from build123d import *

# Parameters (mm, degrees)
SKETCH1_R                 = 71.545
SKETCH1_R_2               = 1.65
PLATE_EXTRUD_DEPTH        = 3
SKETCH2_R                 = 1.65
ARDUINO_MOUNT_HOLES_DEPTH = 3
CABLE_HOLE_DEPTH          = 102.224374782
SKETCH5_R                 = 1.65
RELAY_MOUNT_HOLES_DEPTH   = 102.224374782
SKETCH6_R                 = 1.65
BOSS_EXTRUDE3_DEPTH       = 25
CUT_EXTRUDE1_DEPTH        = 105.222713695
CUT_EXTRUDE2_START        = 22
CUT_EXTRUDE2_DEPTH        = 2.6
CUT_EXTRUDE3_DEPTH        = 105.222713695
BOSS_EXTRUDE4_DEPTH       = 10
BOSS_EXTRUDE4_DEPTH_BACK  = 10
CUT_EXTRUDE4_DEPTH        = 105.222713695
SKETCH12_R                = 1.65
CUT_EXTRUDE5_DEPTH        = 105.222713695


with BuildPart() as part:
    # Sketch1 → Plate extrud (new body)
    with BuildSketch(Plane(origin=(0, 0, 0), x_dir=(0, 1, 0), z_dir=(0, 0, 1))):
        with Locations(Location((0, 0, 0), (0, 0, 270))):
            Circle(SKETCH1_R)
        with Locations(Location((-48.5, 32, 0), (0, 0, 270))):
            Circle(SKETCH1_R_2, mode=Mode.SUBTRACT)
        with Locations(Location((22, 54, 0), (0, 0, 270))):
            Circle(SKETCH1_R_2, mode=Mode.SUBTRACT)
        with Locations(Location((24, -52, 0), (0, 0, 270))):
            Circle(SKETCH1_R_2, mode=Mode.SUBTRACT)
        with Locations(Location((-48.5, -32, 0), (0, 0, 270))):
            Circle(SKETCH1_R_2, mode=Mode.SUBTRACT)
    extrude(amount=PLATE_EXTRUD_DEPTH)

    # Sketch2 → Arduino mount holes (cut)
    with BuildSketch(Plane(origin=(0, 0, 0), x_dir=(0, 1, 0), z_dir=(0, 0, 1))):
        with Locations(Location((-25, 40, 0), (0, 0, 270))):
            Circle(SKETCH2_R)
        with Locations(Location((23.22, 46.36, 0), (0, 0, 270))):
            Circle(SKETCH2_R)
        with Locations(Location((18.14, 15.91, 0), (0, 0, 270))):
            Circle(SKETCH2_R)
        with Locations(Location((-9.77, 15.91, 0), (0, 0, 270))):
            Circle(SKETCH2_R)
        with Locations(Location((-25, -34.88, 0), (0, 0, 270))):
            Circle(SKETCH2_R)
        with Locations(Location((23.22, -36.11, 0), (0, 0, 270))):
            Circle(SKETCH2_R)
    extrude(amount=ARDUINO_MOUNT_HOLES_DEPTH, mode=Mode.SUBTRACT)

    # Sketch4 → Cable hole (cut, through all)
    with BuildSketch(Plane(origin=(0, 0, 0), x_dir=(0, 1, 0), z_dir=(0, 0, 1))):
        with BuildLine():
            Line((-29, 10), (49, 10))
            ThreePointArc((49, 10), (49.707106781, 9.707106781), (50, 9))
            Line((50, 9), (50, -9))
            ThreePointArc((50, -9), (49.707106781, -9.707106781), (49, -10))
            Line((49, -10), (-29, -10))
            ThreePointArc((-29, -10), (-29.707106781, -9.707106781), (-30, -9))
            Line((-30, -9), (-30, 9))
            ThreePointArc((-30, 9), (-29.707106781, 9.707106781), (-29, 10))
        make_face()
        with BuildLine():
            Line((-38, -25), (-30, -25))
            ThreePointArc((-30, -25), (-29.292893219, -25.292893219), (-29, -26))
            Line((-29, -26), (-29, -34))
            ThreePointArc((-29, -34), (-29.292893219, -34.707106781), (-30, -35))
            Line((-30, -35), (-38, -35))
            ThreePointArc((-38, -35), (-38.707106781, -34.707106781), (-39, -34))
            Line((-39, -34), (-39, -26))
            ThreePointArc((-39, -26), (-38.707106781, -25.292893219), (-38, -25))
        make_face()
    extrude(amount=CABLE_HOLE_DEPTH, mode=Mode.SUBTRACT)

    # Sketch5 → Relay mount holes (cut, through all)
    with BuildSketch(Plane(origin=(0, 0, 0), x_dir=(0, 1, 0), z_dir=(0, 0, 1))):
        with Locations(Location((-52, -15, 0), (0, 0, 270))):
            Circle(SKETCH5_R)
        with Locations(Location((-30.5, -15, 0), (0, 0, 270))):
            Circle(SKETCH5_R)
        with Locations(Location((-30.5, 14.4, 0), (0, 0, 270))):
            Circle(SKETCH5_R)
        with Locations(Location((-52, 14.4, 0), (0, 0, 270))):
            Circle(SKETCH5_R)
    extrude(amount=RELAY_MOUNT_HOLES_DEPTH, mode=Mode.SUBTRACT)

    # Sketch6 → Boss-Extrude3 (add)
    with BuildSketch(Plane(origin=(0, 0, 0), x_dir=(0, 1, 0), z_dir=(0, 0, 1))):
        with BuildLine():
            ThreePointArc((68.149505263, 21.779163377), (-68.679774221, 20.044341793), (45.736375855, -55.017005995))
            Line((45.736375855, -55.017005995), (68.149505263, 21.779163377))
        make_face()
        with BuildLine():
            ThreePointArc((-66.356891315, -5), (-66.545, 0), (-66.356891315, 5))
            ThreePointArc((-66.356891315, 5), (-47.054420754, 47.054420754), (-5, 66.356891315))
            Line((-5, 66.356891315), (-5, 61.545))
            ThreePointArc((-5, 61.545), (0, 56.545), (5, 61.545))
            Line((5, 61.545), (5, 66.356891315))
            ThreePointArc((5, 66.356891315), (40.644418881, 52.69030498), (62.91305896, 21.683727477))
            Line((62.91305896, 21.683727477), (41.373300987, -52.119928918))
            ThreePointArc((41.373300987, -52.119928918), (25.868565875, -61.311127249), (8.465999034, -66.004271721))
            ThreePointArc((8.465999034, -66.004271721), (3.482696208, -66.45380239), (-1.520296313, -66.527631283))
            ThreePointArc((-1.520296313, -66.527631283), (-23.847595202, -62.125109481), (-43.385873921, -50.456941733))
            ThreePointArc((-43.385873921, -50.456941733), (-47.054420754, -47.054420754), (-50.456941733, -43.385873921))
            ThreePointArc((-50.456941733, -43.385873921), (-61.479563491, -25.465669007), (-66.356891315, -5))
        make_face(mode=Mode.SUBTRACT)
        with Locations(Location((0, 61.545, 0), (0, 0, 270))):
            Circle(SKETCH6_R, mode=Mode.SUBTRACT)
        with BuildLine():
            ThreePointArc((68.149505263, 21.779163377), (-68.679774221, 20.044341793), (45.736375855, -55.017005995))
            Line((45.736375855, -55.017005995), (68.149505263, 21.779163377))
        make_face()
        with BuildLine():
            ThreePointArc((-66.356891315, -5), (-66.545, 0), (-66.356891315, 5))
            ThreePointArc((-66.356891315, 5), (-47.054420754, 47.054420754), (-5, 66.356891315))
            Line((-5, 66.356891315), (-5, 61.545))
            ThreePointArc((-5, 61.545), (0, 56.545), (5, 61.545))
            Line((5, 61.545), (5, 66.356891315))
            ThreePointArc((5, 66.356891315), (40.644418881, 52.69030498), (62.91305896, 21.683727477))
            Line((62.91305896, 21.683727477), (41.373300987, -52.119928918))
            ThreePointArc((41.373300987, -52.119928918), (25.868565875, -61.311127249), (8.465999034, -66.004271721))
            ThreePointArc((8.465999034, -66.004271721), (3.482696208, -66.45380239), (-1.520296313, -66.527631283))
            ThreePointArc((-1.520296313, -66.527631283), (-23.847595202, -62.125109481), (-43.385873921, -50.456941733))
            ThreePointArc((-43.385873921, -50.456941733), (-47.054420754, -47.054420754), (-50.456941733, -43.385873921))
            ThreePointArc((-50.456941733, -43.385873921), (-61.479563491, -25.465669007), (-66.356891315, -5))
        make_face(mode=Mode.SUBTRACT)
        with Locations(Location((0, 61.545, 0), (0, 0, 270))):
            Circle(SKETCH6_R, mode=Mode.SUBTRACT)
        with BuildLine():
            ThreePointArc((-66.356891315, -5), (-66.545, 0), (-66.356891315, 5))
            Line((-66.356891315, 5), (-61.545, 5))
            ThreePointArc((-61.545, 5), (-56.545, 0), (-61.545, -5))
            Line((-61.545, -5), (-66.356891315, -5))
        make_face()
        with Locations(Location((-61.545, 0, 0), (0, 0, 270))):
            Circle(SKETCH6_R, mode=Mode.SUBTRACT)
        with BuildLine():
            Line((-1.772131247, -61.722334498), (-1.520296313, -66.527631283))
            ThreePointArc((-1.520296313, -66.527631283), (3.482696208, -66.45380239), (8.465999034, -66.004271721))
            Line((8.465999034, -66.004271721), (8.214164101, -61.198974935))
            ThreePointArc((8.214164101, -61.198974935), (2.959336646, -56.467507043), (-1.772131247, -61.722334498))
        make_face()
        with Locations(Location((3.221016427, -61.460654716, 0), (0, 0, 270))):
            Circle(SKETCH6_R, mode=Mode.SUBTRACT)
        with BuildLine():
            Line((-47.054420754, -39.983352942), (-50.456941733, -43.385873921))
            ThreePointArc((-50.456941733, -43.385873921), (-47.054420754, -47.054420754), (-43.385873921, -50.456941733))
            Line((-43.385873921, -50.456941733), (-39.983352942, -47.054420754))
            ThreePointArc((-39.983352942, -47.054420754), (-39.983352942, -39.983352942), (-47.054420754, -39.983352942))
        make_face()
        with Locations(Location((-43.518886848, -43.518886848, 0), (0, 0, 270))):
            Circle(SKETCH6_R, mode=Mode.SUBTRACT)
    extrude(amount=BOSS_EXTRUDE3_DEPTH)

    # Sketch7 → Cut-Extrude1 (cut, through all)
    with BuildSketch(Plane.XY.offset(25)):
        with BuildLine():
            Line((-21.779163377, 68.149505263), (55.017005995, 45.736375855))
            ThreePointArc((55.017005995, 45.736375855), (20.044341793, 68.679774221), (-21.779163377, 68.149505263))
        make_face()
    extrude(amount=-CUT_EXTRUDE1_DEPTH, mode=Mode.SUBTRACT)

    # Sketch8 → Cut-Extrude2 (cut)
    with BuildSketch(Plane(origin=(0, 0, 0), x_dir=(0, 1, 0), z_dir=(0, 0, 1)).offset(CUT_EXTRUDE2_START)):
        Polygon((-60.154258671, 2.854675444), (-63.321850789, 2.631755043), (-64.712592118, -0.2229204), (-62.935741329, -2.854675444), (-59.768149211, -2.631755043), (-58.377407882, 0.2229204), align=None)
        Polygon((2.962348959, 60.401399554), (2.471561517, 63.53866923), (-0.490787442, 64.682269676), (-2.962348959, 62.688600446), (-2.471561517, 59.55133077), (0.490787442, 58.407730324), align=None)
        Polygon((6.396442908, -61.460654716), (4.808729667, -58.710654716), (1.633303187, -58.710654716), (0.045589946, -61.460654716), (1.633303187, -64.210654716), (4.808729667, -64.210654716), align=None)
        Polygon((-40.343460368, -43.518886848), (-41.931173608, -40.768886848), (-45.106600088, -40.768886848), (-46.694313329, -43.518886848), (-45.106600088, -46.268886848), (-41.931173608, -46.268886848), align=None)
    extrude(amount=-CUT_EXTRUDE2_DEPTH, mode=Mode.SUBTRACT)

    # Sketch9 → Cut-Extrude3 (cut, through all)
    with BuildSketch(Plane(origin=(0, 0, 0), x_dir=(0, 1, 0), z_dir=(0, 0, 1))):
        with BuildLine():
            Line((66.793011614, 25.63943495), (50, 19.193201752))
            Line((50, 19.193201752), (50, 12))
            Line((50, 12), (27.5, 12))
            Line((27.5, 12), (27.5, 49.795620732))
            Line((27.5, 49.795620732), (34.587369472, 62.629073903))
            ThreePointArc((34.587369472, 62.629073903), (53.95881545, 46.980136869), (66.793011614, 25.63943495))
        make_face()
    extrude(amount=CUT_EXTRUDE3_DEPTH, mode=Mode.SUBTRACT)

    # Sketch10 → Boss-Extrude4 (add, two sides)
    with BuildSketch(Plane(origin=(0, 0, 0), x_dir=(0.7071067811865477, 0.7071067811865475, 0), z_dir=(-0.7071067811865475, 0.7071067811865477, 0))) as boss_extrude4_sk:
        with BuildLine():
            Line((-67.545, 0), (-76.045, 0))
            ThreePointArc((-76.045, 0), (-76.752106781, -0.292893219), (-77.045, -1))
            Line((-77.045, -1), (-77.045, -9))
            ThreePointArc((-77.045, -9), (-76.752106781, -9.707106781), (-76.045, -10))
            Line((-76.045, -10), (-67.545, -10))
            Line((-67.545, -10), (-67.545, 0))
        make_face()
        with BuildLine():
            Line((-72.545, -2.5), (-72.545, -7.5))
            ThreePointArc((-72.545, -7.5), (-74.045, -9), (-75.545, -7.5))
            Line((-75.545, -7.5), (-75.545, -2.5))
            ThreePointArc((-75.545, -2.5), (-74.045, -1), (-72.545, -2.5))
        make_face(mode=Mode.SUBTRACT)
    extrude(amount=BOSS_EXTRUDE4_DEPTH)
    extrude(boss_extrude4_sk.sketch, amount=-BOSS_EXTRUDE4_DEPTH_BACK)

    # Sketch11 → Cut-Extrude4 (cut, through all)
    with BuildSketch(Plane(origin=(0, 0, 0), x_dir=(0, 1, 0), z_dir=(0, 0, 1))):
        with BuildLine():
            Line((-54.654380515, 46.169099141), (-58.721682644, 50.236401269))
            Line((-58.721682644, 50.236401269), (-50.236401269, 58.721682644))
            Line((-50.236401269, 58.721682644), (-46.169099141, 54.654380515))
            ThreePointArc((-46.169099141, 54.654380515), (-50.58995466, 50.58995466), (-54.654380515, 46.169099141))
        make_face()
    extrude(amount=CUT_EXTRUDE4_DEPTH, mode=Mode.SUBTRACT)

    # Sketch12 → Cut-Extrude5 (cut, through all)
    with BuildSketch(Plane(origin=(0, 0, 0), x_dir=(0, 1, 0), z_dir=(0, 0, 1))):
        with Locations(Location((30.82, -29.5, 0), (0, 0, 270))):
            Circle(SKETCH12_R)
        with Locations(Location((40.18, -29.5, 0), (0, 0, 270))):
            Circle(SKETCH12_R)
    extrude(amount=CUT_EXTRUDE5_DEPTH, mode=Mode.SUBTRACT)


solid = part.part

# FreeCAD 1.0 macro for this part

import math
import FreeCAD as App
import Part
import Sketcher
from FreeCAD import Vector
Q = App.Units.Quantity


def add_polygon(sketch, points):
    """Adds a closed chain of lines whose ends are joined by coincident constraints."""
    first, n = sketch.GeometryCount, len(points)
    for a, b in zip(points, points[1:] + points[:1]):
        sketch.addGeometry(Part.LineSegment(App.Vector(*a, 0), App.Vector(*b, 0)), False)
    for i in range(n):
        sketch.addConstraint(Sketcher.Constraint("Coincident", first + i, 2, first + (i + 1) % n, 1))

doc = App.newDocument("Part")
params = doc.addObject("Spreadsheet::Sheet", "Params")
for row, (alias, value) in enumerate([
    ("sketch1_diameter", "3.3 mm"),
    ("sketch1_diameter2", "143.09 mm"),
    ("pad1_length", "3 mm"),
    ("sketch2_diameter", "3.3 mm"),
    ("pocket1_length", "3 mm"),
    ("sketch3_radius", "1 mm"),
    ("sketch3_width", "18 mm"),
    ("sketch3_width2", "8 mm"),
    ("sketch3_height", "78 mm"),
    ("sketch4_diameter", "3.3 mm"),
    ("sketch5_radius", "5 mm"),
    ("sketch5_diameter", "3.3 mm"),
    ("sketch5_length", "80 mm"),
    ("pad2_length", "25 mm"),
    ("sketch6_length", "80 mm"),
    ("pocket5_length", "2.6 mm"),
    ("sketch8_height", "22.5 mm"),
    ("sketch9_radius", "1 mm"),
    ("sketch9_radius2", "1.5 mm"),
    ("sketch9_height", "8 mm"),
    ("sketch9_height2", "5 mm"),
    ("sketch9_width", "8.5 mm"),
    ("pad3_length", "10 mm"),
    ("pad3_length2", "10 mm"),
    ("sketch10_length", "12 mm"),
    ("sketch11_diameter", "3.3 mm"),
], start=1):
    params.set(f"A{row}", alias)
    params.set(f"B{row}", "=" + value)
    params.setAlias(f"B{row}", alias)

body = doc.addObject("PartDesign::Body", "Body")

sketch1 = doc.addObject("Sketcher::SketchObject", "Sketch")
body.addObject(sketch1)
sketch1.AttachmentSupport = (doc.XY_Plane, [""])
sketch1.MapMode = "FlatFace"
sketch1.addGeometry([
    Part.Circle(Vector(0, 0, 0), Vector(0, 0, 1), 71.5),
    Part.Circle(Vector(-32, -48.5, 0), Vector(0, 0, 1), 1.6),
    Part.Circle(Vector(32, -48.5, 0), Vector(0, 0, 1), 1.6),
    Part.Circle(Vector(-54, 22, 0), Vector(0, 0, 1), 1.6),
    Part.Circle(Vector(52, 24, 0), Vector(0, 0, 1), 1.6),
], False)
sketch1.addConstraint([
    Sketcher.Constraint("Coincident", 0, 3, -1, 1),
    Sketcher.Constraint("Equal", 1, 2),
    Sketcher.Constraint("Equal", 2, 3),
    Sketcher.Constraint("Equal", 3, 4),
    Sketcher.Constraint("Symmetric", 1, 3, 2, 3, -2),
    Sketcher.Constraint("Diameter", 1, Q("3.3 mm")),
    Sketcher.Constraint("Diameter", 0, Q("143.09 mm")),
    Sketcher.Constraint("DistanceX", 1, 3, -1, 1, Q("32 mm")),
    Sketcher.Constraint("DistanceX", 3, 3, -1, 1, Q("54 mm")),
    Sketcher.Constraint("DistanceY", -1, 1, 3, 3, Q("22 mm")),
    Sketcher.Constraint("DistanceX", -1, 1, 4, 3, Q("52 mm")),
    Sketcher.Constraint("DistanceY", -1, 1, 4, 3, Q("24 mm")),
    Sketcher.Constraint("DistanceY", 1, 3, -1, 1, Q("48.5 mm")),
])
sketch1.setExpression("Constraints[5]", "Params.sketch1_diameter")
sketch1.setExpression("Constraints[6]", "Params.sketch1_diameter2")
pad1 = doc.addObject("PartDesign::Pad", "Pad")
body.addObject(pad1)
pad1.Profile = sketch1
pad1.setExpression("Length", "Params.pad1_length")

sketch2 = doc.addObject("Sketcher::SketchObject", "Sketch001")
body.addObject(sketch2)
sketch2.AttachmentSupport = (doc.XY_Plane, [""])
sketch2.MapMode = "FlatFace"
sketch2.addGeometry([
    Part.Circle(Vector(-40, -25, 0), Vector(0, 0, 1), 1.6),
    Part.Circle(Vector(-46.4, 23.2, 0), Vector(0, 0, 1), 1.6),
    Part.Circle(Vector(-15.9, 18.1, 0), Vector(0, 0, 1), 1.6),
    Part.Circle(Vector(-15.9, -9.8, 0), Vector(0, 0, 1), 1.6),
    Part.Circle(Vector(34.9, -25, 0), Vector(0, 0, 1), 1.6),
    Part.Circle(Vector(36.1, 23.2, 0), Vector(0, 0, 1), 1.6),
], False)
sketch2.addConstraint([
    Sketcher.Constraint("Equal", 0, 1),
    Sketcher.Constraint("Equal", 1, 2),
    Sketcher.Constraint("Equal", 2, 3),
    Sketcher.Constraint("Equal", 3, 4),
    Sketcher.Constraint("Equal", 4, 5),
    Sketcher.Constraint("Horizontal", 0, 3, 4, 3),
    Sketcher.Constraint("Horizontal", 1, 3, 5, 3),
    Sketcher.Constraint("Vertical", 2, 3, 3, 3),
    Sketcher.Constraint("Diameter", 0, Q("3.3 mm")),
    Sketcher.Constraint("DistanceX", 0, 3, -1, 1, Q("40 mm")),
    Sketcher.Constraint("DistanceY", 0, 3, -1, 1, Q("25 mm")),
    Sketcher.Constraint("DistanceX", 1, 3, -1, 1, Q("46.36 mm")),
    Sketcher.Constraint("DistanceY", -1, 1, 1, 3, Q("23.22 mm")),
    Sketcher.Constraint("DistanceX", 2, 3, -1, 1, Q("15.91 mm")),
    Sketcher.Constraint("DistanceY", -1, 1, 2, 3, Q("18.14 mm")),
    Sketcher.Constraint("DistanceY", 3, 3, -1, 1, Q("9.77 mm")),
    Sketcher.Constraint("DistanceX", -1, 1, 4, 3, Q("34.88 mm")),
    Sketcher.Constraint("DistanceX", -1, 1, 5, 3, Q("36.11 mm")),
])
sketch2.setExpression("Constraints[8]", "Params.sketch2_diameter")
pocket1 = doc.addObject("PartDesign::Pocket", "Pocket")
body.addObject(pocket1)
pocket1.Profile = sketch2
pocket1.setExpression("Length", "Params.pocket1_length")
pocket1.Reversed = True

sketch3 = doc.addObject("Sketcher::SketchObject", "Sketch002")
body.addObject(sketch3)
sketch3.AttachmentSupport = (doc.XY_Plane, [""])
sketch3.MapMode = "FlatFace"
sketch3.addGeometry([
    Part.LineSegment(Vector(-10, 49, 0), Vector(-10, -29, 0)),
    Part.ArcOfCircle(Part.Circle(Vector(-9, -29, 0), Vector(0, 0, 1), 1), math.radians(-180), math.radians(-90)),
    Part.LineSegment(Vector(-9, -30, 0), Vector(9, -30, 0)),
    Part.ArcOfCircle(Part.Circle(Vector(9, -29, 0), Vector(0, 0, 1), 1), math.radians(-90), math.radians(0)),
    Part.LineSegment(Vector(10, -29, 0), Vector(10, 49, 0)),
    Part.ArcOfCircle(Part.Circle(Vector(9, 49, 0), Vector(0, 0, 1), 1), math.radians(0), math.radians(90)),
    Part.LineSegment(Vector(9, 50, 0), Vector(-9, 50, 0)),
    Part.ArcOfCircle(Part.Circle(Vector(-9, 49, 0), Vector(0, 0, 1), 1), math.radians(90), math.radians(180)),
    Part.LineSegment(Vector(25, -30, 0), Vector(25, -38, 0)),
    Part.ArcOfCircle(Part.Circle(Vector(26, -38, 0), Vector(0, 0, 1), 1), math.radians(-180), math.radians(-90)),
    Part.LineSegment(Vector(26, -39, 0), Vector(34, -39, 0)),
    Part.ArcOfCircle(Part.Circle(Vector(34, -38, 0), Vector(0, 0, 1), 1), math.radians(-90), math.radians(0)),
    Part.LineSegment(Vector(35, -38, 0), Vector(35, -30, 0)),
    Part.ArcOfCircle(Part.Circle(Vector(34, -30, 0), Vector(0, 0, 1), 1), math.radians(0), math.radians(90)),
    Part.LineSegment(Vector(34, -29, 0), Vector(26, -29, 0)),
    Part.ArcOfCircle(Part.Circle(Vector(26, -30, 0), Vector(0, 0, 1), 1), math.radians(90), math.radians(180)),
], False)
sketch3.addConstraint([
    Sketcher.Constraint("Tangent", 0, 2, 1, 1),
    Sketcher.Constraint("Tangent", 1, 2, 2, 1),
    Sketcher.Constraint("Tangent", 2, 2, 3, 1),
    Sketcher.Constraint("Tangent", 3, 2, 4, 1),
    Sketcher.Constraint("Tangent", 4, 2, 5, 1),
    Sketcher.Constraint("Tangent", 5, 2, 6, 1),
    Sketcher.Constraint("Tangent", 6, 2, 7, 1),
    Sketcher.Constraint("Tangent", 7, 2, 0, 1),
    Sketcher.Constraint("Tangent", 8, 2, 9, 1),
    Sketcher.Constraint("Tangent", 9, 2, 10, 1),
    Sketcher.Constraint("Tangent", 10, 2, 11, 1),
    Sketcher.Constraint("Tangent", 11, 2, 12, 1),
    Sketcher.Constraint("Tangent", 12, 2, 13, 1),
    Sketcher.Constraint("Tangent", 13, 2, 14, 1),
    Sketcher.Constraint("Tangent", 14, 2, 15, 1),
    Sketcher.Constraint("Tangent", 15, 2, 8, 1),
    Sketcher.Constraint("Vertical", 0),
    Sketcher.Constraint("Horizontal", 2),
    Sketcher.Constraint("Vertical", 4),
    Sketcher.Constraint("Horizontal", 6),
    Sketcher.Constraint("Vertical", 8),
    Sketcher.Constraint("Horizontal", 10),
    Sketcher.Constraint("Vertical", 12),
    Sketcher.Constraint("Horizontal", 14),
    Sketcher.Constraint("Equal", 1, 3),
    Sketcher.Constraint("Equal", 3, 5),
    Sketcher.Constraint("Equal", 5, 7),
    Sketcher.Constraint("Equal", 7, 9),
    Sketcher.Constraint("Equal", 9, 11),
    Sketcher.Constraint("Equal", 11, 13),
    Sketcher.Constraint("Equal", 13, 15),
    Sketcher.Constraint("Horizontal", 15, 3, 1, 2),
    Sketcher.Constraint("Equal", 14, 8),
    Sketcher.Constraint("Radius", 1, Q("1 mm")),
    Sketcher.Constraint("DistanceX", 2, 1, 2, 2, Q("18 mm")),
    Sketcher.Constraint("DistanceX", 10, 1, 10, 2, Q("8 mm")),
    Sketcher.Constraint("DistanceY", 0, 2, 0, 1, Q("78 mm")),
    Sketcher.Constraint("DistanceX", 1, 3, -1, 1, Q("9 mm")),
    Sketcher.Constraint("DistanceY", 1, 3, -1, 1, Q("29 mm")),
    Sketcher.Constraint("DistanceX", -1, 1, 9, 3, Q("26 mm")),
])
sketch3.setExpression("Constraints[33]", "Params.sketch3_radius")
sketch3.setExpression("Constraints[34]", "Params.sketch3_width")
sketch3.setExpression("Constraints[35]", "Params.sketch3_width2")
sketch3.setExpression("Constraints[36]", "Params.sketch3_height")
pocket2 = doc.addObject("PartDesign::Pocket", "Pocket001")
body.addObject(pocket2)
pocket2.Profile = sketch3
pocket2.Type = "ThroughAll"
pocket2.Reversed = True

sketch4 = doc.addObject("Sketcher::SketchObject", "Sketch003")
body.addObject(sketch4)
sketch4.AttachmentSupport = (doc.XY_Plane, [""])
sketch4.MapMode = "FlatFace"
sketch4.addGeometry([
    Part.Circle(Vector(15, -52, 0), Vector(0, 0, 1), 1.6),
    Part.Circle(Vector(15, -30.5, 0), Vector(0, 0, 1), 1.6),
    Part.Circle(Vector(-14.4, -30.5, 0), Vector(0, 0, 1), 1.6),
    Part.Circle(Vector(-14.4, -52, 0), Vector(0, 0, 1), 1.6),
], False)
sketch4.addConstraint([
    Sketcher.Constraint("Equal", 0, 1),
    Sketcher.Constraint("Equal", 1, 2),
    Sketcher.Constraint("Equal", 2, 3),
    Sketcher.Constraint("Horizontal", 1, 3, 2, 3),
    Sketcher.Constraint("Horizontal", 0, 3, 3, 3),
    Sketcher.Constraint("Vertical", 0, 3, 1, 3),
    Sketcher.Constraint("Vertical", 2, 3, 3, 3),
    Sketcher.Constraint("Diameter", 0, Q("3.3 mm")),
    Sketcher.Constraint("DistanceX", -1, 1, 0, 3, Q("15 mm")),
    Sketcher.Constraint("DistanceY", 0, 3, -1, 1, Q("52 mm")),
    Sketcher.Constraint("DistanceY", 1, 3, -1, 1, Q("30.5 mm")),
    Sketcher.Constraint("DistanceX", 2, 3, -1, 1, Q("14.4 mm")),
])
sketch4.setExpression("Constraints[7]", "Params.sketch4_diameter")
pocket3 = doc.addObject("PartDesign::Pocket", "Pocket002")
body.addObject(pocket3)
pocket3.Profile = sketch4
pocket3.Type = "ThroughAll"
pocket3.Reversed = True

sketch5 = doc.addObject("Sketcher::SketchObject", "Sketch004")
body.addObject(sketch5)
sketch5.AttachmentSupport = (doc.XY_Plane, [""])
sketch5.MapMode = "FlatFace"
sketch5.addGeometry([
    Part.ArcOfCircle(Part.Circle(Vector(0, 0, 0), Vector(0, 0, 1), 71.5), math.radians(108), math.radians(400)),
    Part.LineSegment(Vector(55, 45.7, 0), Vector(-21.8, 68.1, 0)),
    Part.Circle(Vector(43.5, -43.5, 0), Vector(0, 0, 1), 1.6),
    Part.Circle(Vector(61.5, 3.2, 0), Vector(0, 0, 1), 1.6),
    Part.Circle(Vector(0, -61.5, 0), Vector(0, 0, 1), 1.6),
    Part.ArcOfCircle(Part.Circle(Vector(0, 0, 0), Vector(0, 0, 1), 66.5), math.radians(-86), math.radians(-49)),
    Part.LineSegment(Vector(5, -66.4, 0), Vector(5, -61.5, 0)),
    Part.ArcOfCircle(Part.Circle(Vector(0, -61.5, 0), Vector(0, 0, 1), 5), math.radians(0), math.radians(180)),
    Part.LineSegment(Vector(-5, -61.5, 0), Vector(-5, -66.4, 0)),
    Part.ArcOfCircle(Part.Circle(Vector(0, 0, 0), Vector(0, 0, 1), 66.5), math.radians(-176), math.radians(-94)),
    Part.LineSegment(Vector(-66.4, -5, 0), Vector(-61.5, -5, 0)),
    Part.ArcOfCircle(Part.Circle(Vector(-61.5, 0, 0), Vector(0, 0, 1), 5), math.radians(-90), math.radians(90)),
    Part.LineSegment(Vector(-61.5, 5, 0), Vector(-66.4, 5, 0)),
    Part.ArcOfCircle(Part.Circle(Vector(0, 0, 0), Vector(0, 0, 1), 66.5), math.radians(109), math.radians(176)),
    Part.LineSegment(Vector(-21.7, 62.9, 0), Vector(52.1, 41.4, 0)),
    Part.ArcOfCircle(Part.Circle(Vector(0, 0, 0), Vector(0, 0, 1), 66.5), math.radians(7), math.radians(38)),
    Part.LineSegment(Vector(66, 8.5, 0), Vector(61.2, 8.2, 0)),
    Part.ArcOfCircle(Part.Circle(Vector(61.5, 3.2, 0), Vector(0, 0, 1), 5), math.radians(93), math.radians(273)),
    Part.LineSegment(Vector(61.7, -1.8, 0), Vector(66.5, -1.5, 0)),
    Part.ArcOfCircle(Part.Circle(Vector(0, 0, 0), Vector(0, 0, 1), 66.5), math.radians(-41), math.radians(-1)),
    Part.LineSegment(Vector(50.5, -43.4, 0), Vector(47.1, -40, 0)),
    Part.ArcOfCircle(Part.Circle(Vector(43.5, -43.5, 0), Vector(0, 0, 1), 5), math.radians(45), math.radians(225)),
    Part.LineSegment(Vector(40, -47.1, 0), Vector(43.4, -50.5, 0)),
    Part.Circle(Vector(-61.5, 0, 0), Vector(0, 0, 1), 1.6),
], False)
sketch5.addConstraint([
    Sketcher.Constraint("Coincident", 0, 1, 1, 2),
    Sketcher.Constraint("Coincident", 1, 1, 0, 2),
    Sketcher.Constraint("Coincident", 5, 1, 6, 1),
    Sketcher.Constraint("Tangent", 6, 2, 7, 1),
    Sketcher.Constraint("Tangent", 7, 2, 8, 1),
    Sketcher.Constraint("Coincident", 8, 2, 9, 2),
    Sketcher.Constraint("Coincident", 9, 1, 10, 1),
    Sketcher.Constraint("Tangent", 10, 2, 11, 1),
    Sketcher.Constraint("Tangent", 11, 2, 12, 1),
    Sketcher.Constraint("Coincident", 12, 2, 13, 2),
    Sketcher.Constraint("Coincident", 13, 1, 14, 1),
    Sketcher.Constraint("Coincident", 14, 2, 15, 2),
    Sketcher.Constraint("Coincident", 15, 1, 16, 1),
    Sketcher.Constraint("Tangent", 16, 2, 17, 1),
    Sketcher.Constraint("Tangent", 17, 2, 18, 1),
    Sketcher.Constraint("Coincident", 18, 2, 19, 2),
    Sketcher.Constraint("Coincident", 19, 1, 20, 1),
    Sketcher.Constraint("Tangent", 20, 2, 21, 1),
    Sketcher.Constraint("Tangent", 21, 2, 22, 1),
    Sketcher.Constraint("Coincident", 22, 2, 5, 2),
    Sketcher.Constraint("Vertical", 6),
    Sketcher.Constraint("Vertical", 8),
    Sketcher.Constraint("Horizontal", 10),
    Sketcher.Constraint("Horizontal", 12),
    Sketcher.Constraint("Coincident", 0, 3, -1, 1),
    Sketcher.Constraint("Coincident", 5, 3, -1, 1),
    Sketcher.Constraint("Coincident", 9, 3, -1, 1),
    Sketcher.Constraint("Coincident", 13, 3, -1, 1),
    Sketcher.Constraint("Coincident", 15, 3, -1, 1),
    Sketcher.Constraint("Coincident", 19, 3, -1, 1),
    Sketcher.Constraint("Coincident", 7, 3, 4, 3),
    Sketcher.Constraint("Coincident", 17, 3, 3, 3),
    Sketcher.Constraint("Coincident", 21, 3, 2, 3),
    Sketcher.Constraint("Coincident", 23, 3, 11, 3),
    Sketcher.Constraint("Equal", 2, 3),
    Sketcher.Constraint("Equal", 3, 4),
    Sketcher.Constraint("Equal", 5, 9),
    Sketcher.Constraint("Equal", 7, 11),
    Sketcher.Constraint("Equal", 9, 13),
    Sketcher.Constraint("Equal", 13, 15),
    Sketcher.Constraint("Equal", 11, 17),
    Sketcher.Constraint("Equal", 15, 19),
    Sketcher.Constraint("Equal", 17, 21),
    Sketcher.Constraint("Equal", 4, 23),
    Sketcher.Constraint("PointOnObject", 4, 3, -2),
    Sketcher.Constraint("PointOnObject", 11, 3, -1),
    Sketcher.Constraint("Parallel", 1, 14),
    Sketcher.Constraint("Parallel", 16, 18),
    Sketcher.Constraint("Parallel", 20, 22),
    Sketcher.Constraint("Equal", 12, 6),
    Sketcher.Constraint("Equal", 16, 18),
    Sketcher.Constraint("Equal", 18, 20),
    Sketcher.Constraint("Equal", 20, 22),
    Sketcher.Constraint("Radius", 7, Q("5 mm")),
    Sketcher.Constraint("Diameter", 2, Q("3.3 mm")),
    Sketcher.Constraint("Angle", 16, Q("-177 deg")),
    Sketcher.Constraint("Angle", 20, Q("135 deg")),
    Sketcher.Constraint("Distance", 1, Q("80 mm")),
    Sketcher.Constraint("Radius", 0, Q("71.545 mm")),
    Sketcher.Constraint("Radius", 5, Q("66.545 mm")),
    Sketcher.Constraint("Angle", 1, Q("163.73 deg")),
    Sketcher.Constraint("DistanceY", 4, 3, -1, 1, Q("61.545 mm")),
    Sketcher.Constraint("DistanceY", -1, 1, 14, 2, Q("41.373301 mm")),
    Sketcher.Constraint("Distance", 16, Q("4.811891 mm")),
])
sketch5.setExpression("Constraints[53]", "Params.sketch5_radius")
sketch5.setExpression("Constraints[54]", "Params.sketch5_diameter")
sketch5.setExpression("Constraints[57]", "Params.sketch5_length")
pad2 = doc.addObject("PartDesign::Pad", "Pad001")
body.addObject(pad2)
pad2.Profile = sketch5
pad2.setExpression("Length", "Params.pad2_length")

sketch6 = doc.addObject("Sketcher::SketchObject", "Sketch005")
body.addObject(sketch6)
sketch6.AttachmentSupport = (doc.XY_Plane, [""])
sketch6.MapMode = "FlatFace"
sketch6.AttachmentOffset = App.Placement(Vector(0, 0, 25), App.Rotation())
sketch6.addGeometry([
    Part.LineSegment(Vector(-22, 68, 0), Vector(55, 46, 0)),
    Part.ArcOfCircle(Part.Circle(Vector(0, 0, 0), Vector(0, 0, 1), 72), math.radians(40), math.radians(108)),
], False)
sketch6.addConstraint([
    Sketcher.Constraint("Coincident", 0, 1, 1, 2),
    Sketcher.Constraint("Coincident", 1, 1, 0, 2),
    Sketcher.Constraint("Coincident", 1, 3, -1, 1),
    Sketcher.Constraint("Distance", 0, Q("80 mm")),
    Sketcher.Constraint("Radius", 1, Q("71.545 mm")),
    Sketcher.Constraint("Angle", 0, Q("-16.27 deg")),
])
sketch6.setExpression("Constraints[3]", "Params.sketch6_length")
pocket4 = doc.addObject("PartDesign::Pocket", "Pocket003")
body.addObject(pocket4)
pocket4.Profile = sketch6
pocket4.Type = "ThroughAll"

sketch7 = doc.addObject("Sketcher::SketchObject", "Sketch006")
body.addObject(sketch7)
sketch7.AttachmentSupport = (doc.XY_Plane, [""])
sketch7.MapMode = "FlatFace"
sketch7.AttachmentOffset = App.Placement(Vector(0, 0, 22), App.Rotation())
add_polygon(sketch7, [(-2.9, -60.2), (-2.6, -63.3), (0.2, -64.7), (2.9, -62.9), (2.6, -59.8), (-0.2, -58.4)])
add_polygon(sketch7, [(-60.4, 3), (-63.5, 2.5), (-64.7, -0.5), (-62.7, -3), (-59.6, -2.5), (-58.4, 0.5)])
add_polygon(sketch7, [(61.5, 6.4), (58.7, 4.8), (58.7, 1.6), (61.5, 0), (64.2, 1.6), (64.2, 4.8)])
add_polygon(sketch7, [(43.5, -40.3), (40.8, -41.9), (40.8, -45.1), (43.5, -46.7), (46.3, -45.1), (46.3, -41.9)])
sketch7.addConstraint([
    Sketcher.Constraint("Vertical", 13),
    Sketcher.Constraint("Vertical", 16),
    Sketcher.Constraint("Vertical", 19),
    Sketcher.Constraint("Vertical", 22),
    Sketcher.Constraint("Parallel", 0, 3),
    Sketcher.Constraint("Parallel", 1, 4),
    Sketcher.Constraint("Parallel", 2, 5),
    Sketcher.Constraint("Parallel", 6, 9),
    Sketcher.Constraint("Parallel", 7, 10),
    Sketcher.Constraint("Parallel", 8, 11),
    Sketcher.Constraint("Parallel", 12, 15),
    Sketcher.Constraint("Parallel", 14, 17),
    Sketcher.Constraint("Parallel", 15, 18),
    Sketcher.Constraint("Parallel", 17, 20),
    Sketcher.Constraint("Parallel", 18, 21),
    Sketcher.Constraint("Parallel", 20, 23),
    Sketcher.Constraint("Horizontal", 13, 2, 15, 2),
    Sketcher.Constraint("Horizontal", 12, 2, 16, 2),
    Sketcher.Constraint("Horizontal", 19, 2, 21, 2),
    Sketcher.Constraint("Horizontal", 18, 2, 22, 2),
    Sketcher.Constraint("Vertical", 14, 2, 17, 2),
    Sketcher.Constraint("Equal", 16, 19),
    Sketcher.Constraint("Equal", 0, 1),
    Sketcher.Constraint("Equal", 1, 2),
    Sketcher.Constraint("Equal", 2, 3),
    Sketcher.Constraint("Equal", 5, 6),
    Sketcher.Constraint("Equal", 6, 7),
    Sketcher.Constraint("Equal", 7, 8),
    Sketcher.Constraint("Equal", 8, 9),
    Sketcher.Constraint("Equal", 11, 12),
    Sketcher.Constraint("Equal", 17, 18),
    Sketcher.Constraint("Angle", 12, Q("-150 deg")),
    Sketcher.Constraint("DistanceX", 13, 2, 15, 2, Q("5.5 mm")),
    Sketcher.Constraint("DistanceX", 8, 2, -1, 1, Q("62.6886 mm")),
    Sketcher.Constraint("DistanceX", 11, 2, -1, 1, Q("60.4014 mm")),
    Sketcher.Constraint("DistanceY", 19, 2, -1, 1, Q("45.1066 mm")),
    Sketcher.Constraint("DistanceY", 0, 2, 3, 2, Q("3.553702 mm")),
    Sketcher.Constraint("DistanceX", 7, 2, 6, 2, Q("1.1436 mm")),
    Sketcher.Constraint("DistanceY", 0, 2, 8, 2, Q("60.359502 mm")),
    Sketcher.Constraint("DistanceX", 3, 2, 12, 2, Q("56.0789 mm")),
    Sketcher.Constraint("DistanceY", 13, 2, 13, 1, Q("3.175426 mm")),
    Sketcher.Constraint("DistanceY", 0, 2, -1, 1, Q("63.321851 mm")),
    Sketcher.Constraint("DistanceX", -1, 1, 1, 2, Q("0.22292 mm")),
    Sketcher.Constraint("DistanceY", 2, 2, -1, 1, Q("62.935741 mm")),
    Sketcher.Constraint("DistanceX", 4, 2, -1, 1, Q("0.22292 mm")),
    Sketcher.Constraint("DistanceX", 6, 2, -1, 1, Q("63.538669 mm")),
    Sketcher.Constraint("DistanceY", -1, 1, 12, 2, Q("4.80873 mm")),
    Sketcher.Constraint("DistanceX", 3, 2, 18, 2, Q("38.137132 mm")),
])
pocket5 = doc.addObject("PartDesign::Pocket", "Pocket004")
body.addObject(pocket5)
pocket5.Profile = sketch7
pocket5.setExpression("Length", "Params.pocket5_length")

sketch8 = doc.addObject("Sketcher::SketchObject", "Sketch007")
body.addObject(sketch8)
sketch8.AttachmentSupport = (doc.XY_Plane, [""])
sketch8.MapMode = "FlatFace"
sketch8.addGeometry([
    Part.LineSegment(Vector(-19, 50, 0), Vector(-26, 67, 0)),
    Part.ArcOfCircle(Part.Circle(Vector(0, 0, 0), Vector(0, 0, 1), 72), math.radians(111), math.radians(151)),
    Part.LineSegment(Vector(-63, 35, 0), Vector(-50, 28, 0)),
    Part.LineSegment(Vector(-50, 28, 0), Vector(-12, 28, 0)),
    Part.LineSegment(Vector(-12, 28, 0), Vector(-12, 50, 0)),
    Part.LineSegment(Vector(-12, 50, 0), Vector(-19, 50, 0)),
], False)
sketch8.addConstraint([
    Sketcher.Constraint("Coincident", 0, 2, 1, 1),
    Sketcher.Constraint("Coincident", 1, 2, 2, 1),
    Sketcher.Constraint("Coincident", 2, 2, 3, 1),
    Sketcher.Constraint("Coincident", 3, 2, 4, 1),
    Sketcher.Constraint("Coincident", 4, 2, 5, 1),
    Sketcher.Constraint("Coincident", 5, 2, 0, 1),
    Sketcher.Constraint("Horizontal", 3),
    Sketcher.Constraint("Vertical", 4),
    Sketcher.Constraint("Horizontal", 5),
    Sketcher.Constraint("Coincident", 1, 3, -1, 1),
    Sketcher.Constraint("Angle", 0, Q("111 deg")),
    Sketcher.Constraint("DistanceY", 4, 1, 4, 2, Q("22.5 mm")),
    Sketcher.Constraint("DistanceX", 3, 2, -1, 1, Q("12 mm")),
    Sketcher.Constraint("DistanceY", -1, 1, 4, 2, Q("50 mm")),
    Sketcher.Constraint("Radius", 1, Q("71.545 mm")),
    Sketcher.Constraint("Angle", 2, Q("-28.91 deg")),
    Sketcher.Constraint("DistanceX", 5, 2, 5, 1, Q("7.193202 mm")),
    Sketcher.Constraint("DistanceX", 3, 1, 3, 2, Q("37.795621 mm")),
])
sketch8.setExpression("Constraints[11]", "Params.sketch8_height")
pocket6 = doc.addObject("PartDesign::Pocket", "Pocket005")
body.addObject(pocket6)
pocket6.Profile = sketch8
pocket6.Type = "ThroughAll"
pocket6.Reversed = True

sketch9 = doc.addObject("Sketcher::SketchObject", "Sketch008")
body.addObject(sketch9)
sketch9.Placement = App.Placement(Vector(0, 0, 0), App.Rotation(Vector(0.707106781, 0.707106781, 0), Vector(0, 0, -0.999999999), Vector(-0.707106781, 0.707106781, 0), "ZXY"))
sketch9.addGeometry([
    Part.LineSegment(Vector(-67.5, 0, 0), Vector(-76, 0, 0)),
    Part.ArcOfCircle(Part.Circle(Vector(-76, -1, 0), Vector(0, 0, 1), 1), math.radians(90), math.radians(180)),
    Part.LineSegment(Vector(-77, -1, 0), Vector(-77, -9, 0)),
    Part.ArcOfCircle(Part.Circle(Vector(-76, -9, 0), Vector(0, 0, 1), 1), math.radians(-180), math.radians(-90)),
    Part.LineSegment(Vector(-76, -10, 0), Vector(-67.5, -10, 0)),
    Part.LineSegment(Vector(-67.5, -10, 0), Vector(-67.5, 0, 0)),
    Part.ArcOfCircle(Part.Circle(Vector(-74, -2.5, 0), Vector(0, 0, 1), 1.5), math.radians(0), math.radians(180)),
    Part.LineSegment(Vector(-72.5, -2.5, 0), Vector(-72.5, -7.5, 0)),
    Part.ArcOfCircle(Part.Circle(Vector(-74, -7.5, 0), Vector(0, 0, 1), 1.5), math.radians(180), math.radians(360)),
    Part.LineSegment(Vector(-75.5, -7.5, 0), Vector(-75.5, -2.5, 0)),
], False)
sketch9.addConstraint([
    Sketcher.Constraint("Tangent", 0, 2, 1, 1),
    Sketcher.Constraint("Tangent", 1, 2, 2, 1),
    Sketcher.Constraint("Tangent", 2, 2, 3, 1),
    Sketcher.Constraint("Tangent", 3, 2, 4, 1),
    Sketcher.Constraint("Coincident", 4, 2, 5, 1),
    Sketcher.Constraint("Coincident", 5, 2, 0, 1),
    Sketcher.Constraint("Tangent", 6, 1, 7, 1),
    Sketcher.Constraint("Tangent", 7, 2, 8, 2),
    Sketcher.Constraint("Tangent", 8, 1, 9, 1),
    Sketcher.Constraint("Tangent", 9, 2, 6, 2),
    Sketcher.Constraint("Horizontal", 0),
    Sketcher.Constraint("Vertical", 2),
    Sketcher.Constraint("Horizontal", 4),
    Sketcher.Constraint("Vertical", 5),
    Sketcher.Constraint("Vertical", 7),
    Sketcher.Constraint("Vertical", 9),
    Sketcher.Constraint("Equal", 1, 3),
    Sketcher.Constraint("PointOnObject", 0, 2, -1),
    Sketcher.Constraint("Radius", 1, Q("1 mm")),
    Sketcher.Constraint("Radius", 6, Q("1.5 mm")),
    Sketcher.Constraint("DistanceY", 2, 2, 2, 1, Q("8 mm")),
    Sketcher.Constraint("DistanceY", 7, 2, 7, 1, Q("5 mm")),
    Sketcher.Constraint("DistanceX", 0, 2, 0, 1, Q("8.5 mm")),
    Sketcher.Constraint("DistanceX", 1, 3, 6, 3, Q("2 mm")),
    Sketcher.Constraint("DistanceY", 6, 3, -1, 1, Q("2.5 mm")),
    Sketcher.Constraint("DistanceX", 1, 3, -1, 1, Q("76.045 mm")),
])
sketch9.setExpression("Constraints[18]", "Params.sketch9_radius")
sketch9.setExpression("Constraints[19]", "Params.sketch9_radius2")
sketch9.setExpression("Constraints[20]", "Params.sketch9_height")
sketch9.setExpression("Constraints[21]", "Params.sketch9_height2")
sketch9.setExpression("Constraints[22]", "Params.sketch9_width")
pad3 = doc.addObject("PartDesign::Pad", "Pad002")
body.addObject(pad3)
pad3.Profile = sketch9
pad3.Type = "TwoLengths"
pad3.setExpression("Length", "Params.pad3_length")
pad3.setExpression("Length2", "Params.pad3_length2")

sketch10 = doc.addObject("Sketcher::SketchObject", "Sketch009")
body.addObject(sketch10)
sketch10.AttachmentSupport = (doc.XY_Plane, [""])
sketch10.MapMode = "FlatFace"
sketch10.addGeometry([
    Part.LineSegment(Vector(-50, -59, 0), Vector(-46, -55, 0)),
    Part.ArcOfCircle(Part.Circle(Vector(0, 0, 0), Vector(0, 0, 1), 72), math.radians(-139.81), math.radians(-130.19)),
    Part.LineSegment(Vector(-55, -46, 0), Vector(-59, -50, 0)),
    Part.LineSegment(Vector(-59, -50, 0), Vector(-50, -59, 0)),
], False)
sketch10.addConstraint([
    Sketcher.Constraint("Coincident", 0, 2, 1, 2),
    Sketcher.Constraint("Coincident", 1, 1, 2, 1),
    Sketcher.Constraint("Coincident", 2, 2, 3, 1),
    Sketcher.Constraint("Coincident", 3, 2, 0, 1),
    Sketcher.Constraint("Coincident", 1, 3, -1, 1),
    Sketcher.Constraint("Parallel", 0, 2),
    Sketcher.Constraint("Perpendicular", 2, 3),
    Sketcher.Constraint("Equal", 0, 2),
    Sketcher.Constraint("Angle", 0, Q("45 deg")),
    Sketcher.Constraint("Distance", 3, Q("12 mm")),
    Sketcher.Constraint("Radius", 1, Q("71.545 mm")),
    Sketcher.Constraint("DistanceY", 2, 2, -1, 1, Q("50.236401 mm")),
])
sketch10.setExpression("Constraints[9]", "Params.sketch10_length")
pocket7 = doc.addObject("PartDesign::Pocket", "Pocket006")
body.addObject(pocket7)
pocket7.Profile = sketch10
pocket7.Type = "ThroughAll"
pocket7.Reversed = True

sketch11 = doc.addObject("Sketcher::SketchObject", "Sketch010")
body.addObject(sketch11)
sketch11.AttachmentSupport = (doc.XY_Plane, [""])
sketch11.MapMode = "FlatFace"
sketch11.addGeometry([
    Part.Circle(Vector(29.5, 30.8, 0), Vector(0, 0, 1), 1.6),
    Part.Circle(Vector(29.5, 40.2, 0), Vector(0, 0, 1), 1.6),
], False)
sketch11.addConstraint([
    Sketcher.Constraint("Equal", 0, 1),
    Sketcher.Constraint("Vertical", 0, 3, 1, 3),
    Sketcher.Constraint("Diameter", 0, Q("3.3 mm")),
    Sketcher.Constraint("DistanceX", -1, 1, 0, 3, Q("29.5 mm")),
    Sketcher.Constraint("DistanceY", -1, 1, 0, 3, Q("30.82 mm")),
    Sketcher.Constraint("DistanceY", -1, 1, 1, 3, Q("40.18 mm")),
])
sketch11.setExpression("Constraints[2]", "Params.sketch11_diameter")
pocket8 = doc.addObject("PartDesign::Pocket", "Pocket007")
body.addObject(pocket8)
pocket8.Profile = sketch11
pocket8.Type = "ThroughAll"
pocket8.Reversed = True

doc.recompute()
